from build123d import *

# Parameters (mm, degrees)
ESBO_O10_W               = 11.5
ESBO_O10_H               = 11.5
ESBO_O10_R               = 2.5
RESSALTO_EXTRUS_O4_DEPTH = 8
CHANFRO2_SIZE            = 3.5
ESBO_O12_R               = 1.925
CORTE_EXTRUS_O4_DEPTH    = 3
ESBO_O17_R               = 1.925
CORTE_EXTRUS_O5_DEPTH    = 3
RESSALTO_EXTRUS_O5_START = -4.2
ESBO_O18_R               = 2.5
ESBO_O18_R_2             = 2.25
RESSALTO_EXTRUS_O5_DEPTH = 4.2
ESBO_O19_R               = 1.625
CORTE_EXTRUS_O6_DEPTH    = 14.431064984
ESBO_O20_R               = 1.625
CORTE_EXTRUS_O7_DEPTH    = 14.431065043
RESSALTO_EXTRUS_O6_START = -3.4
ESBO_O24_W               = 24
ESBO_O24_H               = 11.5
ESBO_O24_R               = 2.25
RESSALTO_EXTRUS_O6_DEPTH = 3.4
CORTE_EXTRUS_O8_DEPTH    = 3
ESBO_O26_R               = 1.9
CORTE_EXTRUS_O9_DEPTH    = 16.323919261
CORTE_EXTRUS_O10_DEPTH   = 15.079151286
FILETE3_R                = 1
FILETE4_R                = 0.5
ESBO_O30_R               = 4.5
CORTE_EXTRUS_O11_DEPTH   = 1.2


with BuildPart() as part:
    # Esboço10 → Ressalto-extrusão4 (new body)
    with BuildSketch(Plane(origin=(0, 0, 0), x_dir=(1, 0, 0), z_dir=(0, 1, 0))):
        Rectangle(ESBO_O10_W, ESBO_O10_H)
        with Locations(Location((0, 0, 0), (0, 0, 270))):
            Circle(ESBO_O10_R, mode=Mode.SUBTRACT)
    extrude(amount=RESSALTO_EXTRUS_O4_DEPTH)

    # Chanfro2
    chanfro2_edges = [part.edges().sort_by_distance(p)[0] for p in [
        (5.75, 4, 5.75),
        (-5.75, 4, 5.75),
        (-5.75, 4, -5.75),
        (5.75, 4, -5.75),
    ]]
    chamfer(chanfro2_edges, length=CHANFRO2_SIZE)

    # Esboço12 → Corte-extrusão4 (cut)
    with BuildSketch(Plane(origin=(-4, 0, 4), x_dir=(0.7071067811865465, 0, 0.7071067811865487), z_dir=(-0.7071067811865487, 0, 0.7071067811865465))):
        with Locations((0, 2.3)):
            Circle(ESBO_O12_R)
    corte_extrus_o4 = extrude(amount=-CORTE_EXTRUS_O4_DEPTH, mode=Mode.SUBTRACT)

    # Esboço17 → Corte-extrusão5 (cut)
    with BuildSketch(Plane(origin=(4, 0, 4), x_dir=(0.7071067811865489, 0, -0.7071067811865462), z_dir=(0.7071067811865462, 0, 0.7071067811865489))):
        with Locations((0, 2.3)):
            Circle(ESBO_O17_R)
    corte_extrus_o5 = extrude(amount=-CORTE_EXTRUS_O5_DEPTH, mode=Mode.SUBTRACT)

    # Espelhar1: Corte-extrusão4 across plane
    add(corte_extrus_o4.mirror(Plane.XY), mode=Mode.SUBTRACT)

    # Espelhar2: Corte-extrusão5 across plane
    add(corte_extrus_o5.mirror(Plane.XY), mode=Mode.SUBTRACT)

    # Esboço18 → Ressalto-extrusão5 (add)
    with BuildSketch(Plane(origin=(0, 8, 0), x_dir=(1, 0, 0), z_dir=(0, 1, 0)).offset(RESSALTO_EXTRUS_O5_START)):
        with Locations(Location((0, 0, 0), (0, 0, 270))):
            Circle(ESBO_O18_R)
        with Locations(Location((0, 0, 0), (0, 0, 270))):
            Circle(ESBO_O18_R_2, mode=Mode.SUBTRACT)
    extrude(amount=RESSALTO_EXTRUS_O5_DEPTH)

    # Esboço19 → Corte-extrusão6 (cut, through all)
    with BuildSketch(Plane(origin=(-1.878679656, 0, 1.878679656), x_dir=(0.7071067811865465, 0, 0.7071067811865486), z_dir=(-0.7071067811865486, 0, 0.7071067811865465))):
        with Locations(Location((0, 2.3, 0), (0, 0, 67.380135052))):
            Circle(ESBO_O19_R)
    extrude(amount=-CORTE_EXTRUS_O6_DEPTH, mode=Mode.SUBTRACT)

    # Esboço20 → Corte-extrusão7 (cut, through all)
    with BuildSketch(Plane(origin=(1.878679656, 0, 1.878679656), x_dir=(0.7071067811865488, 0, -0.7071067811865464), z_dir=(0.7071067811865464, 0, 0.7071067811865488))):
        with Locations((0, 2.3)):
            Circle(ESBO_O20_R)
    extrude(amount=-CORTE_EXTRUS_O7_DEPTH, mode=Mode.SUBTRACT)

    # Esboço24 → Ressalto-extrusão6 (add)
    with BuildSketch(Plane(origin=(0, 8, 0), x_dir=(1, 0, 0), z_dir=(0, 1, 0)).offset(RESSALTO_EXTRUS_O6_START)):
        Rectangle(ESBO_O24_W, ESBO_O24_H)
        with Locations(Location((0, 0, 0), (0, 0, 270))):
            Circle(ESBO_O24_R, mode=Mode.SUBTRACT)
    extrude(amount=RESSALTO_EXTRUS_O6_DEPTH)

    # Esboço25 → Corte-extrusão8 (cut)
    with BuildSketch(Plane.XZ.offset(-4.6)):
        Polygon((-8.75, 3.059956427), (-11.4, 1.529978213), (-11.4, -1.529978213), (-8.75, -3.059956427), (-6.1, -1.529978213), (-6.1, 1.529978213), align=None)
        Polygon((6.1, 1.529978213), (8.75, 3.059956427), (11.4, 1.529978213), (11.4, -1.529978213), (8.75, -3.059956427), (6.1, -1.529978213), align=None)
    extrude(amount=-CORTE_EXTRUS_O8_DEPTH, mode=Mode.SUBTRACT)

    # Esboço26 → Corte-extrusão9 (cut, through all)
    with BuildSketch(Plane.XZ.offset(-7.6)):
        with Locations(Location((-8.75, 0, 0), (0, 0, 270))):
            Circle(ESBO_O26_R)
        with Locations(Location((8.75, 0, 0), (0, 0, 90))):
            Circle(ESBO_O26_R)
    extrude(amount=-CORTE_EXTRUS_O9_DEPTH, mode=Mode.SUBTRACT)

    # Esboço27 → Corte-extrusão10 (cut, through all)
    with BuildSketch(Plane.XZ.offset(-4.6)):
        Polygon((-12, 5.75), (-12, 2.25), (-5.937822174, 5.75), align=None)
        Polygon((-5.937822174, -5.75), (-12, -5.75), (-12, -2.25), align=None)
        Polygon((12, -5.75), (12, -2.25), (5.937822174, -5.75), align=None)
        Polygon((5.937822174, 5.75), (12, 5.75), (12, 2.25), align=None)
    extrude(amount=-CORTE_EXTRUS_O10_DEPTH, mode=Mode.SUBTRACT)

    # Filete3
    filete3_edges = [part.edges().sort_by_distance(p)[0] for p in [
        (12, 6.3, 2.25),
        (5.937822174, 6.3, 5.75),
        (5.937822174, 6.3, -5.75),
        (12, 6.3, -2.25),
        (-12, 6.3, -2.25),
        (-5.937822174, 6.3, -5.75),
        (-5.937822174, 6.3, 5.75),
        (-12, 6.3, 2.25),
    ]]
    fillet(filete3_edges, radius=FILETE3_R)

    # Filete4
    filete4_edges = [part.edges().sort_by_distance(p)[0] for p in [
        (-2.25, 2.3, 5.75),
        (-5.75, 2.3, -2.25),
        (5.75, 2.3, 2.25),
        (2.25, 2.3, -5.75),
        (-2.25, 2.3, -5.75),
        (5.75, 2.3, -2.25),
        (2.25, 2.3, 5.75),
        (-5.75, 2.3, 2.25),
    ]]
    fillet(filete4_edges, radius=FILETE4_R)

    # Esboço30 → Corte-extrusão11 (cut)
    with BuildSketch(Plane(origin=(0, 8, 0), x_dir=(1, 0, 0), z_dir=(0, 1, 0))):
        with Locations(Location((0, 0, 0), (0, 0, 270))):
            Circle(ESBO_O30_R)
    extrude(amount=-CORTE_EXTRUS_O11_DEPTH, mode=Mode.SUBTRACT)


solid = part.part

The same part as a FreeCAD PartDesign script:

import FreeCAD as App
import Part
import Sketcher
from FreeCAD import Vector
Q = App.Units.Quantity


def edges_at(feature, points):
    """Names of the edges that pass closest to the given points."""
    edges = feature.Shape.Edges
    near = lambda p: min(range(len(edges)), key=lambda i: edges[i].distToShape(Part.Vertex(*p))[0])
    return sorted({f"Edge{near(p) + 1}" for p in points})


def add_polygon(sketch, points):
    """Adds a closed chain of lines whose ends are joined by coincident constraints."""
    first, n = sketch.GeometryCount, len(points)
    for a, b in zip(points, points[1:] + points[:1]):
        sketch.addGeometry(Part.LineSegment(App.Vector(*a, 0), App.Vector(*b, 0)), False)
    for i in range(n):
        sketch.addConstraint(Sketcher.Constraint("Coincident", first + i, 2, first + (i + 1) % n, 1))

doc = App.newDocument("Part")
body = doc.addObject("PartDesign::Body", "Body")

sketch1 = body.newObject("Sketcher::SketchObject", "Sketch")
sketch1.AttachmentSupport = (doc.getObject("XZ_Plane"), [""])
sketch1.MapMode = "FlatFace"
add_polygon(sketch1, [(-5.75, -5.75), (-5.75, 5.75), (5.75, 5.75), (5.75, -5.75)])
sketch1.addGeometry(Part.Circle(Vector(0, 0, 0), Vector(0, 0, 1), 2.5), False)
sketch1.addConstraint(Sketcher.Constraint("Vertical", 0))
sketch1.addConstraint(Sketcher.Constraint("Horizontal", 1))
sketch1.addConstraint(Sketcher.Constraint("Vertical", 2))
sketch1.addConstraint(Sketcher.Constraint("Horizontal", 3))
sketch1.addConstraint(Sketcher.Constraint("Coincident", 4, 3, -1, 1))
sketch1.addConstraint(Sketcher.Constraint("Symmetric", 0, 2, 2, 2, -1, 1))
sketch1.addConstraint(Sketcher.Constraint("Equal", 3, 0))
sketch1.addConstraint(Sketcher.Constraint("Diameter", 4, 5.0))
sketch1.addConstraint(Sketcher.Constraint("DistanceX", 1, 1, 1, 2, 11.5))
pad1 = body.newObject("PartDesign::Pad", "Pad")
pad1.Profile = sketch1
pad1.Length = 8
pad1.Reversed = True
doc.recompute()

chamfer = body.newObject("PartDesign::Chamfer", "Chamfer")
chamfer.Base = (pad1, edges_at(pad1, [
    (5.75, 4, 5.75),
    (-5.75, 4, 5.75),
    (-5.75, 4, -5.75),
    (5.75, 4, -5.75),
]))
chamfer.Size = 3.5

sketch2 = body.newObject("Sketcher::SketchObject", "Sketch001")
sketch2.Placement = App.Placement(Vector(-4, 0, 4), App.Rotation(Vector(0.707106781, 0, 0.707106781), Vector(0, 0.999999999, 0), Vector(-0.707106781, 0, 0.707106781), "ZXY"))
sketch2.addGeometry(Part.Circle(Vector(0, 2.3, 0), Vector(0, 0, 1), 1.925), False)
sketch2.addConstraint(Sketcher.Constraint("PointOnObject", 0, 3, -2))
sketch2.addConstraint(Sketcher.Constraint("Diameter", 0, 3.85))
sketch2.addConstraint(Sketcher.Constraint("DistanceY", -1, 1, 0, 3, 2.3))
pocket1 = body.newObject("PartDesign::Pocket", "Pocket")
pocket1.Profile = sketch2
pocket1.Length = 3

sketch3 = body.newObject("Sketcher::SketchObject", "Sketch002")
sketch3.Placement = App.Placement(Vector(4, 0, 4), App.Rotation(Vector(0.707106781, 0, -0.707106781), Vector(0, 0.999999999, 0), Vector(0.707106781, 0, 0.707106781), "ZXY"))
sketch3.addGeometry(Part.Circle(Vector(0, 2.3, 0), Vector(0, 0, 1), 1.925), False)
sketch3.addConstraint(Sketcher.Constraint("PointOnObject", 0, 3, -2))
sketch3.addConstraint(Sketcher.Constraint("Diameter", 0, 3.85))
sketch3.addConstraint(Sketcher.Constraint("DistanceY", -1, 1, 0, 3, 2.3))
pocket2 = body.newObject("PartDesign::Pocket", "Pocket001")
pocket2.Profile = sketch3
pocket2.Length = 3
doc.recompute()

mirrored = body.newObject("PartDesign::Mirrored", "Mirrored")
mirrored.Originals = [pocket1]
mirrored.MirrorPlane = (doc.getObject("XY_Plane"), [""])
body.Tip = mirrored
doc.recompute()

mirrored2 = body.newObject("PartDesign::Mirrored", "Mirrored001")
mirrored2.Originals = [pocket2]
mirrored2.MirrorPlane = (doc.getObject("XY_Plane"), [""])
body.Tip = mirrored2

sketch4 = body.newObject("Sketcher::SketchObject", "Sketch003")
sketch4.AttachmentSupport = (doc.getObject("XZ_Plane"), [""])
sketch4.MapMode = "FlatFace"
sketch4.AttachmentOffset = App.Placement(Vector(0, 0, -3.8), App.Rotation())
sketch4.addGeometry(Part.Circle(Vector(0, 0, 0), Vector(0, 0, 1), 2.5), False)
sketch4.addGeometry(Part.Circle(Vector(0, 0, 0), Vector(0, 0, 1), 2.25), False)
sketch4.addConstraint(Sketcher.Constraint("Coincident", 0, 3, -1, 1))
sketch4.addConstraint(Sketcher.Constraint("Coincident", 1, 3, -1, 1))
sketch4.addConstraint(Sketcher.Constraint("Diameter", 0, 5.0))
sketch4.addConstraint(Sketcher.Constraint("Diameter", 1, 4.5))
pad2 = body.newObject("PartDesign::Pad", "Pad001")
pad2.Profile = sketch4
pad2.Length = 4.2
pad2.Reversed = True

sketch5 = body.newObject("Sketcher::SketchObject", "Sketch004")
sketch5.Placement = App.Placement(Vector(-1.87868, 0, 1.87868), App.Rotation(Vector(0.707106781, 0, 0.707106781), Vector(0, 0.999999999, 0), Vector(-0.707106781, 0, 0.707106781), "ZXY"))
sketch5.addGeometry(Part.Circle(Vector(0, 2.3, 0), Vector(0, 0, 1), 1.625), False)
sketch5.addConstraint(Sketcher.Constraint("PointOnObject", 0, 3, -2))
sketch5.addConstraint(Sketcher.Constraint("Diameter", 0, 3.25))
sketch5.addConstraint(Sketcher.Constraint("DistanceY", -1, 1, 0, 3, 2.3))
pocket3 = body.newObject("PartDesign::Pocket", "Pocket002")
pocket3.Profile = sketch5
pocket3.Type = "ThroughAll"

sketch6 = body.newObject("Sketcher::SketchObject", "Sketch005")
sketch6.Placement = App.Placement(Vector(1.87868, 0, 1.87868), App.Rotation(Vector(0.707106781, 0, -0.707106781), Vector(0, 0.999999999, 0), Vector(0.707106781, 0, 0.707106781), "ZXY"))
sketch6.addGeometry(Part.Circle(Vector(0, 2.3, 0), Vector(0, 0, 1), 1.625), False)
sketch6.addConstraint(Sketcher.Constraint("PointOnObject", 0, 3, -2))
sketch6.addConstraint(Sketcher.Constraint("Diameter", 0, 3.25))
sketch6.addConstraint(Sketcher.Constraint("DistanceY", -1, 1, 0, 3, 2.3))
pocket4 = body.newObject("PartDesign::Pocket", "Pocket003")
pocket4.Profile = sketch6
pocket4.Type = "ThroughAll"

sketch7 = body.newObject("Sketcher::SketchObject", "Sketch006")
sketch7.AttachmentSupport = (doc.getObject("XZ_Plane"), [""])
sketch7.MapMode = "FlatFace"
sketch7.AttachmentOffset = App.Placement(Vector(0, 0, -4.6), App.Rotation())
add_polygon(sketch7, [(-12, -5.75), (-12, 5.75), (12, 5.75), (12, -5.75)])
sketch7.addGeometry(Part.Circle(Vector(0, 0, 0), Vector(0, 0, 1), 2.25), False)
sketch7.addConstraint(Sketcher.Constraint("Vertical", 0))
sketch7.addConstraint(Sketcher.Constraint("Horizontal", 1))
sketch7.addConstraint(Sketcher.Constraint("Vertical", 2))
sketch7.addConstraint(Sketcher.Constraint("Horizontal", 3))
sketch7.addConstraint(Sketcher.Constraint("Coincident", 4, 3, -1, 1))
sketch7.addConstraint(Sketcher.Constraint("Symmetric", 0, 2, 2, 2, -1, 1))
sketch7.addConstraint(Sketcher.Constraint("Diameter", 4, 4.5))
sketch7.addConstraint(Sketcher.Constraint("DistanceX", 1, 1, 1, 2, 24.0))
sketch7.addConstraint(Sketcher.Constraint("DistanceY", 0, 1, 0, 2, 11.5))
pad3 = body.newObject("PartDesign::Pad", "Pad002")
pad3.Profile = sketch7
pad3.Length = 3.4
pad3.Reversed = True

sketch8 = body.newObject("Sketcher::SketchObject", "Sketch007")
sketch8.AttachmentSupport = (doc.getObject("XZ_Plane"), [""])
sketch8.MapMode = "FlatFace"
sketch8.AttachmentOffset = App.Placement(Vector(0, 0, -4.6), App.Rotation())
add_polygon(sketch8, [(-8.75, 3.059956), (-11.4, 1.529978), (-11.4, -1.529978), (-8.75, -3.059956), (-6.1, -1.529978), (-6.1, 1.529978)])
add_polygon(sketch8, [(8.75, 3.059956), (6.1, 1.529978), (6.1, -1.529978), (8.75, -3.059956), (11.4, -1.529978), (11.4, 1.529978)])
sketch8.addConstraint(Sketcher.Constraint("Vertical", 1))
sketch8.addConstraint(Sketcher.Constraint("Vertical", 4))
sketch8.addConstraint(Sketcher.Constraint("Vertical", 7))
sketch8.addConstraint(Sketcher.Constraint("Vertical", 10))
sketch8.addConstraint(Sketcher.Constraint("Symmetric", 3, 2, 6, 2, -1, 1))
sketch8.addConstraint(Sketcher.Constraint("Symmetric", 5, 2, 8, 2, -1, 1))
sketch8.addConstraint(Sketcher.Constraint("Symmetric", 0, 2, 9, 2, -1, 1))
sketch8.addConstraint(Sketcher.Constraint("Symmetric", 2, 2, 11, 2, -1, 1))
sketch8.addConstraint(Sketcher.Constraint("Symmetric", 2, 2, 8, 2, -2))
sketch8.addConstraint(Sketcher.Constraint("Parallel", 0, 3))
sketch8.addConstraint(Sketcher.Constraint("Parallel", 2, 5))
sketch8.addConstraint(Sketcher.Constraint("Parallel", 5, 8))
sketch8.addConstraint(Sketcher.Constraint("Parallel", 8, 11))
sketch8.addConstraint(Sketcher.Constraint("Horizontal", 1, 2, 3, 2))
sketch8.addConstraint(Sketcher.Constraint("Horizontal", 0, 2, 4, 2))
sketch8.addConstraint(Sketcher.Constraint("Angle", 0, Q("-150 deg")))
sketch8.addConstraint(Sketcher.Constraint("DistanceX", 0, 2, -1, 1, 11.4))
sketch8.addConstraint(Sketcher.Constraint("DistanceX", 3, 2, -1, 1, 6.1))
sketch8.addConstraint(Sketcher.Constraint("DistanceY", 1, 2, 1, 1, 3.059956))
pocket5 = body.newObject("PartDesign::Pocket", "Pocket004")
pocket5.Profile = sketch8
pocket5.Length = 3

sketch9 = body.newObject("Sketcher::SketchObject", "Sketch008")
sketch9.AttachmentSupport = (doc.getObject("XZ_Plane"), [""])
sketch9.MapMode = "FlatFace"
sketch9.AttachmentOffset = App.Placement(Vector(0, 0, -7.6), App.Rotation())
sketch9.addGeometry(Part.Circle(Vector(-8.75, 0, 0), Vector(0, 0, 1), 1.9), False)
sketch9.addGeometry(Part.Circle(Vector(8.75, 0, 0), Vector(0, 0, 1), 1.9), False)
sketch9.addConstraint(Sketcher.Constraint("Equal", 0, 1))
sketch9.addConstraint(Sketcher.Constraint("Symmetric", 0, 3, 1, 3, -1, 1))
sketch9.addConstraint(Sketcher.Constraint("PointOnObject", 0, 3, -1))
sketch9.addConstraint(Sketcher.Constraint("Diameter", 0, 3.8))
sketch9.addConstraint(Sketcher.Constraint("DistanceX", 0, 3, 1, 3, 17.5))
pocket6 = body.newObject("PartDesign::Pocket", "Pocket005")
pocket6.Profile = sketch9
pocket6.Type = "ThroughAll"

sketch10 = body.newObject("Sketcher::SketchObject", "Sketch009")
sketch10.AttachmentSupport = (doc.getObject("XZ_Plane"), [""])
sketch10.MapMode = "FlatFace"
sketch10.AttachmentOffset = App.Placement(Vector(0, 0, -4.6), App.Rotation())
add_polygon(sketch10, [(-12, 5.75), (-12, 2.25), (-5.937822, 5.75)])
add_polygon(sketch10, [(-12, -5.75), (-5.937822, -5.75), (-12, -2.25)])
add_polygon(sketch10, [(12, -5.75), (12, -2.25), (5.937822, -5.75)])
add_polygon(sketch10, [(12, 5.75), (5.937822, 5.75), (12, 2.25)])
sketch10.addConstraint(Sketcher.Constraint("Vertical", 0))
sketch10.addConstraint(Sketcher.Constraint("Horizontal", 2))
sketch10.addConstraint(Sketcher.Constraint("Horizontal", 3))
sketch10.addConstraint(Sketcher.Constraint("Vertical", 5))
sketch10.addConstraint(Sketcher.Constraint("Vertical", 6))
sketch10.addConstraint(Sketcher.Constraint("Horizontal", 8))
sketch10.addConstraint(Sketcher.Constraint("Horizontal", 9))
sketch10.addConstraint(Sketcher.Constraint("Vertical", 11))
sketch10.addConstraint(Sketcher.Constraint("Symmetric", 0, 2, 6, 2, -1, 1))
sketch10.addConstraint(Sketcher.Constraint("Symmetric", 1, 2, 7, 2, -1, 1))
sketch10.addConstraint(Sketcher.Constraint("Symmetric", 3, 2, 9, 2, -1, 1))
sketch10.addConstraint(Sketcher.Constraint("Symmetric", 4, 2, 10, 2, -1, 1))
sketch10.addConstraint(Sketcher.Constraint("Symmetric", 4, 2, 6, 2, -2))
sketch10.addConstraint(Sketcher.Constraint("Symmetric", 3, 2, 7, 2, -2))
sketch10.addConstraint(Sketcher.Constraint("Angle", 1, Q("30 deg")))
sketch10.addConstraint(Sketcher.Constraint("Distance", 1, 7.0))
sketch10.addConstraint(Sketcher.Constraint("DistanceX", 0, 2, -1, 1, 12.0))
sketch10.addConstraint(Sketcher.Constraint("DistanceY", 3, 2, 0, 2, 8.0))
pocket7 = body.newObject("PartDesign::Pocket", "Pocket006")
pocket7.Profile = sketch10
pocket7.Type = "ThroughAll"
doc.recompute()

fillet = body.newObject("PartDesign::Fillet", "Fillet")
fillet.Base = (pocket7, edges_at(pocket7, [
    (12, 6.3, 2.25),
    (5.938, 6.3, 5.75),
    (5.938, 6.3, -5.75),
    (12, 6.3, -2.25),
    (-12, 6.3, -2.25),
    (-5.938, 6.3, -5.75),
    (-5.938, 6.3, 5.75),
    (-12, 6.3, 2.25),
]))
fillet.Radius = 1
doc.recompute()

fillet2 = body.newObject("PartDesign::Fillet", "Fillet001")
fillet2.Base = (fillet, edges_at(fillet, [
    (-2.25, 2.3, 5.75),
    (-5.75, 2.3, -2.25),
    (5.75, 2.3, 2.25),
    (2.25, 2.3, -5.75),
    (-2.25, 2.3, -5.75),
    (5.75, 2.3, -2.25),
    (2.25, 2.3, 5.75),
    (-5.75, 2.3, 2.25),
]))
fillet2.Radius = 0.5

sketch11 = body.newObject("Sketcher::SketchObject", "Sketch010")
sketch11.AttachmentSupport = (doc.getObject("XZ_Plane"), [""])
sketch11.MapMode = "FlatFace"
sketch11.AttachmentOffset = App.Placement(Vector(0, 0, -8), App.Rotation())
sketch11.addGeometry(Part.Circle(Vector(0, 0, 0), Vector(0, 0, 1), 4.5), False)
sketch11.addConstraint(Sketcher.Constraint("Coincident", 0, 3, -1, 1))
sketch11.addConstraint(Sketcher.Constraint("Diameter", 0, 9.0))
pocket8 = body.newObject("PartDesign::Pocket", "Pocket007")
pocket8.Profile = sketch11
pocket8.Length = 1.2
pocket8.Reversed = True

doc.recompute()
